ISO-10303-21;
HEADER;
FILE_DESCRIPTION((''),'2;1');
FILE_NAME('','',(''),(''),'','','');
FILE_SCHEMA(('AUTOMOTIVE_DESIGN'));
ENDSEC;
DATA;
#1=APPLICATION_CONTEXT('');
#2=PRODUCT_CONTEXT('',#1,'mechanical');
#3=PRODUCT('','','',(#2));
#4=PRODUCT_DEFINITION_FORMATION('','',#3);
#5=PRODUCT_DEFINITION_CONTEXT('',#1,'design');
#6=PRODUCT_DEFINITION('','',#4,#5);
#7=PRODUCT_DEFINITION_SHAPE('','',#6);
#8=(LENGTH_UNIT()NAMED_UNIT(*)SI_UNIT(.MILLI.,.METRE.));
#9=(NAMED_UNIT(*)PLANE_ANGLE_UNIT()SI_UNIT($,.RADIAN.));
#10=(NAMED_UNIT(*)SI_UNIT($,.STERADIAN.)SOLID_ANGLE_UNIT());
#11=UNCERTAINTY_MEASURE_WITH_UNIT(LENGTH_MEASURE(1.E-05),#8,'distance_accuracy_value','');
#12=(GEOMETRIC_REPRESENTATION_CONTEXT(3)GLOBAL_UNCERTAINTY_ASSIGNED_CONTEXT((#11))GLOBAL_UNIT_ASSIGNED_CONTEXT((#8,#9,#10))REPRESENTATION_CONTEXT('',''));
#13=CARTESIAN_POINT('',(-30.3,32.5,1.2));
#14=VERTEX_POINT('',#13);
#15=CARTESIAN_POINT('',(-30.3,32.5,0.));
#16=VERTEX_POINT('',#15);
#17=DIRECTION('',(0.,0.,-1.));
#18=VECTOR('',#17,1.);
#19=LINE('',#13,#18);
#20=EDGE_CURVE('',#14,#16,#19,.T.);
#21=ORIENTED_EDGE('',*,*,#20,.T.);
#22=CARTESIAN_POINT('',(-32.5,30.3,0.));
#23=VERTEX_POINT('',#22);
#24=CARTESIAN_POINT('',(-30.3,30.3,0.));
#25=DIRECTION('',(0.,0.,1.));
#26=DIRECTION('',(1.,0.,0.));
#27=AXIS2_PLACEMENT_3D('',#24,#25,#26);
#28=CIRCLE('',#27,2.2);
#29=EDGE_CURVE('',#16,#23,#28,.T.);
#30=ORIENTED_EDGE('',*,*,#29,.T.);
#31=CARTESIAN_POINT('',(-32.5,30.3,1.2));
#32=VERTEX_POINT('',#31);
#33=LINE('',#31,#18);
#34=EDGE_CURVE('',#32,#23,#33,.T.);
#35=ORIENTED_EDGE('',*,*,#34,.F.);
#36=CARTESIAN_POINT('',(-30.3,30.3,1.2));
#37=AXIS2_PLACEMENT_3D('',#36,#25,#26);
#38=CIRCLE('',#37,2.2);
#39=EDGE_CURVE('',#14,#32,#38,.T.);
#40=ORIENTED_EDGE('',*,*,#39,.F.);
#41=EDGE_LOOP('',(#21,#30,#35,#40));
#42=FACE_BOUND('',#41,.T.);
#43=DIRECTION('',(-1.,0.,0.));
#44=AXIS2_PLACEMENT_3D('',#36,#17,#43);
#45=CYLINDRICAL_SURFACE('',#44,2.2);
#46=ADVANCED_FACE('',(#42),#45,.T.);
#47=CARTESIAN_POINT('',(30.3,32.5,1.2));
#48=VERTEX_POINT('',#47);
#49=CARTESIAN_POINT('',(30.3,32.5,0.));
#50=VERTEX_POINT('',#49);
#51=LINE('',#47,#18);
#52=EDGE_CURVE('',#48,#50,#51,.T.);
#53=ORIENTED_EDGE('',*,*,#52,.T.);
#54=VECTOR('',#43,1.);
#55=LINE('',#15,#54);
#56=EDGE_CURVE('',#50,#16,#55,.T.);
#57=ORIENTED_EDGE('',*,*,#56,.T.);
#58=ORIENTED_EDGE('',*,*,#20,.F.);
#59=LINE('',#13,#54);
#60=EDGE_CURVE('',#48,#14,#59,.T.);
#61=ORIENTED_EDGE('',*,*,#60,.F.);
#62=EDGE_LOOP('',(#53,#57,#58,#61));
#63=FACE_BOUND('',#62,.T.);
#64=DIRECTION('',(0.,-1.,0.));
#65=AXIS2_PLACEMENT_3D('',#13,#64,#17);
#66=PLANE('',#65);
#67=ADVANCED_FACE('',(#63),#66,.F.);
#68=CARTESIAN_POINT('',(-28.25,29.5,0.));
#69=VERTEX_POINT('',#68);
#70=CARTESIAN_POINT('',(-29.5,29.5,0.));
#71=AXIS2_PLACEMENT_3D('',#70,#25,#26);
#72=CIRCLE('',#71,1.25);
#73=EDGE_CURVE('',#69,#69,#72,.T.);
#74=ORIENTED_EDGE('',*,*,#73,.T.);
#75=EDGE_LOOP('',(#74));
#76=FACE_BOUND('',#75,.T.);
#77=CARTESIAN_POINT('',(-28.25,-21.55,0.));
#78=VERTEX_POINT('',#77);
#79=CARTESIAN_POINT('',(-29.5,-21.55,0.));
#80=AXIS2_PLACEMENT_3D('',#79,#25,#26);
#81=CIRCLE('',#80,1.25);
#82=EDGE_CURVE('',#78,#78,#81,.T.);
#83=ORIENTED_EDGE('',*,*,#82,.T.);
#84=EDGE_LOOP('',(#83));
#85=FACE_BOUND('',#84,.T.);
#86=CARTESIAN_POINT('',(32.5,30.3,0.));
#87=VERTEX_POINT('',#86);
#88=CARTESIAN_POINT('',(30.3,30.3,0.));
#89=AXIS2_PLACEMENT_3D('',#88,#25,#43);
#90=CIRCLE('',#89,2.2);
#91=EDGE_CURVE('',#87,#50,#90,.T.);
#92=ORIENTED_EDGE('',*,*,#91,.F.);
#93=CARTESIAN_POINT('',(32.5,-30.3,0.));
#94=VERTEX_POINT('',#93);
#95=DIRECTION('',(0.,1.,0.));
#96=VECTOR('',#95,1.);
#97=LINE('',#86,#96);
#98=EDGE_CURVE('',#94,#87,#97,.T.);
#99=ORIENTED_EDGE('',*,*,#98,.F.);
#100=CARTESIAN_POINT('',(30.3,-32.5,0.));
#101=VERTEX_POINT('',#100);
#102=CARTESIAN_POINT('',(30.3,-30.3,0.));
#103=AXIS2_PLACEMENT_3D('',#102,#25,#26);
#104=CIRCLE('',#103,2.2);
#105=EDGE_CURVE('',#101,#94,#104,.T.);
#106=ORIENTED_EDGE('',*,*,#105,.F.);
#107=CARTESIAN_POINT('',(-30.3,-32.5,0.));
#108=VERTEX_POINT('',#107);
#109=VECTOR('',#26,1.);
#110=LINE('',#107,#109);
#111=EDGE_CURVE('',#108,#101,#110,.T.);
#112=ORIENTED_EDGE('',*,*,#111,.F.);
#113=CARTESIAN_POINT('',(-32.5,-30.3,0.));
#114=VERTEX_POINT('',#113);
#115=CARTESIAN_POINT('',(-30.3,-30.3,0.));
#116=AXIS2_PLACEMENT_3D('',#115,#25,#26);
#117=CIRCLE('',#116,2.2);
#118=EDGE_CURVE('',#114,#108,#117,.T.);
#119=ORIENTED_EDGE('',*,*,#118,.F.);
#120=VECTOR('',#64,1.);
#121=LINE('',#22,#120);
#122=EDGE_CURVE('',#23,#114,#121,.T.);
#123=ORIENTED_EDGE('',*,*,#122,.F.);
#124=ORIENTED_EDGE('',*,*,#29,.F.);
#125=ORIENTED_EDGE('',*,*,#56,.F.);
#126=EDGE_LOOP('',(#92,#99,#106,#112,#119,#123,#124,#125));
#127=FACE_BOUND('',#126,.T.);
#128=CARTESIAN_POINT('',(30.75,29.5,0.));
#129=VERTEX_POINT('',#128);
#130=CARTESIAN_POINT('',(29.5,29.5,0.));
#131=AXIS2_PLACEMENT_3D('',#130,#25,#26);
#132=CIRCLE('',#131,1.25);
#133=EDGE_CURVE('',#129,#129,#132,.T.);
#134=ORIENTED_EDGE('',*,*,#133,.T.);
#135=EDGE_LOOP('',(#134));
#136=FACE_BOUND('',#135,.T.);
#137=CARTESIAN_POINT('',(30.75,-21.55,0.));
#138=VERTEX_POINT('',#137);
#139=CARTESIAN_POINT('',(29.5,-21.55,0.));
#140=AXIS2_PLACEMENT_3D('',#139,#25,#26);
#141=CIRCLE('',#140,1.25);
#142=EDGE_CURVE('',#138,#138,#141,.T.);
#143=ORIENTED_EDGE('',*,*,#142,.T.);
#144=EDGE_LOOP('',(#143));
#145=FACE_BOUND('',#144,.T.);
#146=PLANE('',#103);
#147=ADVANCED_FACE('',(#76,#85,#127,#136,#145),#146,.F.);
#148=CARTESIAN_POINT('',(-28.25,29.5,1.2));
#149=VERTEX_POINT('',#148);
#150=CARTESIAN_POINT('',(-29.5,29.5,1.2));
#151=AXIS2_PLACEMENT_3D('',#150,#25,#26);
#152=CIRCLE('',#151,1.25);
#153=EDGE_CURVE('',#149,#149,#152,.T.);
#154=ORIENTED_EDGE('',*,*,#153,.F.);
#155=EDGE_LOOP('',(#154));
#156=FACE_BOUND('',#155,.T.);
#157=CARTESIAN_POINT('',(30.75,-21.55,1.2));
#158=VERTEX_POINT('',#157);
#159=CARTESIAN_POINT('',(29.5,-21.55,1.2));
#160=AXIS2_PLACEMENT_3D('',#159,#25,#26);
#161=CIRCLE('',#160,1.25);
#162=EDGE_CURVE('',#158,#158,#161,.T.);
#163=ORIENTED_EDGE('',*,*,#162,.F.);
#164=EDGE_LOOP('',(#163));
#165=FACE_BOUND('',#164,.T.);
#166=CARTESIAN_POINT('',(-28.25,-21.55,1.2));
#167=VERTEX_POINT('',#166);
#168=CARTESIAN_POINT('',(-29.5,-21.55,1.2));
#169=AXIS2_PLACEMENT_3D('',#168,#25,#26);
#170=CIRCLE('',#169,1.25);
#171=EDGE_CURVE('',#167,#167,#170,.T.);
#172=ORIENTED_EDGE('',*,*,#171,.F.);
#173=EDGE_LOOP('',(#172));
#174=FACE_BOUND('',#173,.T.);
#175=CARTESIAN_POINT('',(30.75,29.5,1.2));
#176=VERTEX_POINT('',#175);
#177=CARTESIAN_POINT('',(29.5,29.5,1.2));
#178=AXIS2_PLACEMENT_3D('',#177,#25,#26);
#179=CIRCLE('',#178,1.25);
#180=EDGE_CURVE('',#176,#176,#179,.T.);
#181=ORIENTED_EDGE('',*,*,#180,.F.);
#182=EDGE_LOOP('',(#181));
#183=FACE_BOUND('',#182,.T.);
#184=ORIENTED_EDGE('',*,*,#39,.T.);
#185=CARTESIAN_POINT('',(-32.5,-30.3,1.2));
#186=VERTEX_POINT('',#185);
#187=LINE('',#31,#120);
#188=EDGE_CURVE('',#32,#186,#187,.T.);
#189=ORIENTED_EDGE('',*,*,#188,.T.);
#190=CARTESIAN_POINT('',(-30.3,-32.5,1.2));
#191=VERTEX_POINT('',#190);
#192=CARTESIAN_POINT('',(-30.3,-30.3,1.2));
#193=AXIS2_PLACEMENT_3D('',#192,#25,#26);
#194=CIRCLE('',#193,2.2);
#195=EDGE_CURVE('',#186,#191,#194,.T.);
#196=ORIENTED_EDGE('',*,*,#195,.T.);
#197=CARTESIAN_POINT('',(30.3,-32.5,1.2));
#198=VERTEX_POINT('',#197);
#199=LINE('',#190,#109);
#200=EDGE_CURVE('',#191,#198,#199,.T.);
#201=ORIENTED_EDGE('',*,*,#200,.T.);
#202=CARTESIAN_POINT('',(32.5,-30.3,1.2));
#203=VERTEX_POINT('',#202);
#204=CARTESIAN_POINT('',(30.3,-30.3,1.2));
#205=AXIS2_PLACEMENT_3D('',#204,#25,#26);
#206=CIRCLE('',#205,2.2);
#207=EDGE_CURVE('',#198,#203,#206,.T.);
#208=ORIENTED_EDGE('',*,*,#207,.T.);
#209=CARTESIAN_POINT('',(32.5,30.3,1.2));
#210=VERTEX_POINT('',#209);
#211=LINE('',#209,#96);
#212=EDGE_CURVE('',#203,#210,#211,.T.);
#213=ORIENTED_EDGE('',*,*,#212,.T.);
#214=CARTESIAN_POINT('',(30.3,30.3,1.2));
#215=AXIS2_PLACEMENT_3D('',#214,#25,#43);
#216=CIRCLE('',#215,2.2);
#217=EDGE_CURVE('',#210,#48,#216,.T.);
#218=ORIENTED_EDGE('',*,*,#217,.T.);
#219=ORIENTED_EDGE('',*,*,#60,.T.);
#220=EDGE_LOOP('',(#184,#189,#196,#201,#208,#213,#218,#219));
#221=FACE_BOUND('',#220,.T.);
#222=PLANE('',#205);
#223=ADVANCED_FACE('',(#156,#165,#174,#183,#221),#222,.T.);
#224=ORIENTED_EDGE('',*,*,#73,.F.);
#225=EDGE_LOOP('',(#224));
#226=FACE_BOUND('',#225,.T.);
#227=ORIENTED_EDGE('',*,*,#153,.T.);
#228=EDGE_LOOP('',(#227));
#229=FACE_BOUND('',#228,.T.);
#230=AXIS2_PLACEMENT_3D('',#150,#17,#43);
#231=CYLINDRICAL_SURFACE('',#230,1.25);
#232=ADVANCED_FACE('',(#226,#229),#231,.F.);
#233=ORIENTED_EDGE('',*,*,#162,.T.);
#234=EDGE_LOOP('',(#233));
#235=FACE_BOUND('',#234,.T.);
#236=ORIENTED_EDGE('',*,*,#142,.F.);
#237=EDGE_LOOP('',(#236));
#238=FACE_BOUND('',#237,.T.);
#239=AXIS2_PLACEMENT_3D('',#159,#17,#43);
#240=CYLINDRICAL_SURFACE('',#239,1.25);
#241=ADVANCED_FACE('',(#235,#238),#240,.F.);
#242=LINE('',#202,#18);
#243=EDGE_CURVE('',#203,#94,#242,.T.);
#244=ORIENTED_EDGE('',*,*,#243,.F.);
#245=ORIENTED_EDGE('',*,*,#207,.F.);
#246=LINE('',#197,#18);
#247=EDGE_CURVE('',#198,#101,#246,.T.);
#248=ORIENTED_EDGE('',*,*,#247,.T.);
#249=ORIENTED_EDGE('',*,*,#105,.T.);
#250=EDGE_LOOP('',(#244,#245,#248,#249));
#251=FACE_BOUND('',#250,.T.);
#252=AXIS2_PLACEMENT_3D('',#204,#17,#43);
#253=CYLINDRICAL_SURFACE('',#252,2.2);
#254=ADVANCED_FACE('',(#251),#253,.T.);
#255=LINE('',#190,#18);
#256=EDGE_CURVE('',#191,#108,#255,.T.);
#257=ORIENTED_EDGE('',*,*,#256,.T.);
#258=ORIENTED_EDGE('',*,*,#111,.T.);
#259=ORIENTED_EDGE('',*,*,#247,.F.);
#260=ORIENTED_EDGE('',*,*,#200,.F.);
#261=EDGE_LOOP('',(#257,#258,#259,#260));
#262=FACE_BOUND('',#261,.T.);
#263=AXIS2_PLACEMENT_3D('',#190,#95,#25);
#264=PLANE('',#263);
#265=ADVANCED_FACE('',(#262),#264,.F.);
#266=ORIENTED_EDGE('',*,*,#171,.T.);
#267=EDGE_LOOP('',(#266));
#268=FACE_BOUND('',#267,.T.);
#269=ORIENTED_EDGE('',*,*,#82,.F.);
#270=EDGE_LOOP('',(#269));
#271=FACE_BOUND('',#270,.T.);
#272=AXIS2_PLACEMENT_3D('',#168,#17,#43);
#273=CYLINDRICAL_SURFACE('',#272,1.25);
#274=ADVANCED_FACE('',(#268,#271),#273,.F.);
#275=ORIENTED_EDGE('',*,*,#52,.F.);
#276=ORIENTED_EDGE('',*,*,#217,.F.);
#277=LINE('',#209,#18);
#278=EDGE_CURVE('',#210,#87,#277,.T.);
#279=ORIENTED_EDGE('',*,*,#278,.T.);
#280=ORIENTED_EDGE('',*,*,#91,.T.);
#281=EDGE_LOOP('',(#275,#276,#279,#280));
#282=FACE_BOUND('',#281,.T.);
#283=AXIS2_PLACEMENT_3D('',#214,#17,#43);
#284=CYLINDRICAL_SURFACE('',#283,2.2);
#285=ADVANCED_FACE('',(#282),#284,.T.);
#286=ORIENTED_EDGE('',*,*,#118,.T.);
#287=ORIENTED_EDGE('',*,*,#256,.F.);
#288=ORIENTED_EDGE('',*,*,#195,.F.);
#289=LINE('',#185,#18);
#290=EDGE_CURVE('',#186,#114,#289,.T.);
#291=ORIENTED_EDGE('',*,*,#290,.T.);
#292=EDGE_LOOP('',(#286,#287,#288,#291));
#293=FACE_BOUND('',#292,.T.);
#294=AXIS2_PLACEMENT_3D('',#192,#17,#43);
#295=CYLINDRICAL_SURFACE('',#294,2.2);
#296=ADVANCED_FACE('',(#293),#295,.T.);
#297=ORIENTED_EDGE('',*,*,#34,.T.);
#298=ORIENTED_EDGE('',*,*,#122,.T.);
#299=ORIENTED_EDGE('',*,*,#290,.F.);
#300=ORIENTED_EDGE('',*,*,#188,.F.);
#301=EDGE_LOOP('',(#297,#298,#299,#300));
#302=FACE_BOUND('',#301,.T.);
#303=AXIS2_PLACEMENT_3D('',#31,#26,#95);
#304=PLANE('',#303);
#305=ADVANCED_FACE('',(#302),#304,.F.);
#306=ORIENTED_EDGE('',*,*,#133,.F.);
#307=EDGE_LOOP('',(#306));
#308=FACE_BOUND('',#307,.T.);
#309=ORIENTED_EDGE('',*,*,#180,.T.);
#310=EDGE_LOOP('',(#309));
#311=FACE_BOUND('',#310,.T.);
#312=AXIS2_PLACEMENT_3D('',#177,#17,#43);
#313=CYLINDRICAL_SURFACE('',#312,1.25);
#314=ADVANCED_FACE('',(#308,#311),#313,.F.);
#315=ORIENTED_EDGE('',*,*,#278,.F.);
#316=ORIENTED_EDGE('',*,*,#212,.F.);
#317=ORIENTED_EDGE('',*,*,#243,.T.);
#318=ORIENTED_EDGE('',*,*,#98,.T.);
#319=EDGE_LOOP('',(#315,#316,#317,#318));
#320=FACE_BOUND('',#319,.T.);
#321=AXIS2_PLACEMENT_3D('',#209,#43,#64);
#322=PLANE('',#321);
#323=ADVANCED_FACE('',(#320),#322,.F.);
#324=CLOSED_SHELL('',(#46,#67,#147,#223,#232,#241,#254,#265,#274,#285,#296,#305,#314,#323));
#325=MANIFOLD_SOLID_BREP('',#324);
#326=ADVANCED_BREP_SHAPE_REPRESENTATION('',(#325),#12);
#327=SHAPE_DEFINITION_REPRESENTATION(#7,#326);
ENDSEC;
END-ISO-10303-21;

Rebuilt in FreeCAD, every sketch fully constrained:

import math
import FreeCAD as App
import Part
import Sketcher

V = App.Vector

doc = App.newDocument("Part")
body = doc.addObject("PartDesign::Body", "Body")

sketch1 = doc.addObject("Sketcher::SketchObject", "Sketch")
body.addObject(sketch1)
sketch1.AttachmentSupport = (doc.XY_Plane, [""])
sketch1.MapMode = "FlatFace"
sketch1.addGeometry(Part.LineSegment(V(30.3, 32.5, 0), V(-30.3, 32.5, 0)), False)
sketch1.addGeometry(Part.ArcOfCircle(Part.Circle(V(-30.3, 30.3, 0), V(0, 0, 1), 2.2), math.radians(90), math.radians(180)), False)
sketch1.addGeometry(Part.LineSegment(V(-32.5, 30.3, 0), V(-32.5, -30.3, 0)), False)
sketch1.addGeometry(Part.ArcOfCircle(Part.Circle(V(-30.3, -30.3, 0), V(0, 0, 1), 2.2), math.radians(180), math.radians(270)), False)
sketch1.addGeometry(Part.LineSegment(V(-30.3, -32.5, 0), V(30.3, -32.5, 0)), False)
sketch1.addGeometry(Part.ArcOfCircle(Part.Circle(V(30.3, -30.3, 0), V(0, 0, 1), 2.2), math.radians(-90), math.radians(0)), False)
sketch1.addGeometry(Part.LineSegment(V(32.5, -30.3, 0), V(32.5, 30.3, 0)), False)
sketch1.addGeometry(Part.ArcOfCircle(Part.Circle(V(30.3, 30.3, 0), V(0, 0, 1), 2.2), math.radians(0), math.radians(90)), False)
sketch1.addGeometry(Part.Circle(V(29.5, -21.6, 0), V(0, 0, 1), 1.2), False)
sketch1.addGeometry(Part.Circle(V(-29.5, -21.6, 0), V(0, 0, 1), 1.2), False)
sketch1.addGeometry(Part.Circle(V(29.5, 29.5, 0), V(0, 0, 1), 1.2), False)
sketch1.addGeometry(Part.Circle(V(-29.5, 29.5, 0), V(0, 0, 1), 1.2), False)
sketch1.addConstraint(Sketcher.Constraint("Tangent", 0, 2, 1, 1))
sketch1.addConstraint(Sketcher.Constraint("Tangent", 1, 2, 2, 1))
sketch1.addConstraint(Sketcher.Constraint("Tangent", 2, 2, 3, 1))
sketch1.addConstraint(Sketcher.Constraint("Tangent", 3, 2, 4, 1))
sketch1.addConstraint(Sketcher.Constraint("Tangent", 4, 2, 5, 1))
sketch1.addConstraint(Sketcher.Constraint("Tangent", 5, 2, 6, 1))
sketch1.addConstraint(Sketcher.Constraint("Tangent", 6, 2, 7, 1))
sketch1.addConstraint(Sketcher.Constraint("Tangent", 7, 2, 0, 1))
sketch1.addConstraint(Sketcher.Constraint("Horizontal", 0))
sketch1.addConstraint(Sketcher.Constraint("Vertical", 2))
sketch1.addConstraint(Sketcher.Constraint("Horizontal", 4))
sketch1.addConstraint(Sketcher.Constraint("Vertical", 6))
sketch1.addConstraint(Sketcher.Constraint("Equal", 1, 3))
sketch1.addConstraint(Sketcher.Constraint("Equal", 3, 5))
sketch1.addConstraint(Sketcher.Constraint("Equal", 5, 7))
sketch1.addConstraint(Sketcher.Constraint("Equal", 8, 9))
sketch1.addConstraint(Sketcher.Constraint("Equal", 9, 10))
sketch1.addConstraint(Sketcher.Constraint("Equal", 10, 11))
sketch1.addConstraint(Sketcher.Constraint("Symmetric", 1, 3, 5, 3, -1, 1))
sketch1.addConstraint(Sketcher.Constraint("Symmetric", 8, 3, 9, 3, -2))
sketch1.addConstraint(Sketcher.Constraint("Symmetric", 10, 3, 11, 3, -2))
sketch1.addConstraint(Sketcher.Constraint("Vertical", 8, 3, 10, 3))
sketch1.addConstraint(Sketcher.Constraint("Equal", 4, 2))
sketch1.addConstraint(Sketcher.Constraint("Diameter", 8, 2.5))
sketch1.addConstraint(Sketcher.Constraint("Radius", 1, 2.2))
sketch1.addConstraint(Sketcher.Constraint("DistanceX", 0, 2, 0, 1, 60.6))
sketch1.addConstraint(Sketcher.Constraint("DistanceX", 9, 3, 8, 3, 59.0))
sketch1.addConstraint(Sketcher.Constraint("DistanceY", 11, 3, 0, 2, 3.0))
sketch1.addConstraint(Sketcher.Constraint("DistanceY", 8, 3, -1, 1, 21.55))
pad1 = doc.addObject("PartDesign::Pad", "Pad")
body.addObject(pad1)
pad1.Profile = sketch1
pad1.Length = 1.2

doc.recompute()
